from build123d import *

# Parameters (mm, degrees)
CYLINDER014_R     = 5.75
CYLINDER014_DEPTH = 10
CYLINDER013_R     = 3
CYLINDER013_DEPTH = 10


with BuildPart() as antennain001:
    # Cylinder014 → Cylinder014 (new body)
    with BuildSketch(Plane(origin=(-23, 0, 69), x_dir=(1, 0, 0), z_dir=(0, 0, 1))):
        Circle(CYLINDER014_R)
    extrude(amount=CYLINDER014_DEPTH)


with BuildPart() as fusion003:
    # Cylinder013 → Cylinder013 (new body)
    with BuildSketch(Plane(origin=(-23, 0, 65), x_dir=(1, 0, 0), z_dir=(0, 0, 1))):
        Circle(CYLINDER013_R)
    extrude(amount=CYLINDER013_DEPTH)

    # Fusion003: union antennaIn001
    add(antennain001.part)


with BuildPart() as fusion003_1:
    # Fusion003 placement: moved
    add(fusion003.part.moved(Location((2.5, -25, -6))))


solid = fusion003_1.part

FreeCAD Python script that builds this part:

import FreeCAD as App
import Part
import Sketcher

V = App.Vector

doc = App.newDocument("Part")
body = doc.addObject("PartDesign::Body", "Body")

sketch1 = body.newObject("Sketcher::SketchObject", "Sketch")
sketch1.AttachmentSupport = (doc.getObject("XY_Plane"), [""])
sketch1.MapMode = "FlatFace"
sketch1.AttachmentOffset = App.Placement(V(0, 0, 69), App.Rotation())
sketch1.addGeometry(Part.Circle(V(-23, 0, 0), V(0, 0, 1), 5.75), False)
sketch1.addConstraint([
    Sketcher.Constraint("PointOnObject", 0, 3, -1),
    Sketcher.Constraint("Diameter", 0, 11.5),
    Sketcher.Constraint("DistanceX", 0, 3, -1, 1, 23.0),
])
pad1 = body.newObject("PartDesign::Pad", "Pad")
pad1.Profile = sketch1
pad1.Length = 10
body2 = doc.addObject("PartDesign::Body", "Body001")

sketch2 = body2.newObject("Sketcher::SketchObject", "Sketch001")
sketch2.AttachmentSupport = (doc.getObject("XY_Plane001"), [""])
sketch2.MapMode = "FlatFace"
sketch2.AttachmentOffset = App.Placement(V(0, 0, 65), App.Rotation())
sketch2.addGeometry(Part.Circle(V(-23, 0, 0), V(0, 0, 1), 3), False)
sketch2.addConstraint([
    Sketcher.Constraint("PointOnObject", 0, 3, -1),
    Sketcher.Constraint("Diameter", 0, 6.0),
    Sketcher.Constraint("DistanceX", 0, 3, -1, 1, 23.0),
])
pad2 = body2.newObject("PartDesign::Pad", "Pad001")
pad2.Profile = sketch2
pad2.Length = 10
doc.recompute()

boolean = body2.newObject("PartDesign::Boolean", "Boolean")
boolean.Type = "Fuse"
boolean.addObjects([body])
body3 = doc.addObject("PartDesign::Body", "Body002")
doc.recompute()

body2.Placement = App.Placement(V(2.5, -25, -6), App.Rotation(V(0, 0, 1), 0))
boolean2 = body3.newObject("PartDesign::Boolean", "Boolean001")
boolean2.Type = "Fuse"
boolean2.addObjects([body2])

doc.recompute()
